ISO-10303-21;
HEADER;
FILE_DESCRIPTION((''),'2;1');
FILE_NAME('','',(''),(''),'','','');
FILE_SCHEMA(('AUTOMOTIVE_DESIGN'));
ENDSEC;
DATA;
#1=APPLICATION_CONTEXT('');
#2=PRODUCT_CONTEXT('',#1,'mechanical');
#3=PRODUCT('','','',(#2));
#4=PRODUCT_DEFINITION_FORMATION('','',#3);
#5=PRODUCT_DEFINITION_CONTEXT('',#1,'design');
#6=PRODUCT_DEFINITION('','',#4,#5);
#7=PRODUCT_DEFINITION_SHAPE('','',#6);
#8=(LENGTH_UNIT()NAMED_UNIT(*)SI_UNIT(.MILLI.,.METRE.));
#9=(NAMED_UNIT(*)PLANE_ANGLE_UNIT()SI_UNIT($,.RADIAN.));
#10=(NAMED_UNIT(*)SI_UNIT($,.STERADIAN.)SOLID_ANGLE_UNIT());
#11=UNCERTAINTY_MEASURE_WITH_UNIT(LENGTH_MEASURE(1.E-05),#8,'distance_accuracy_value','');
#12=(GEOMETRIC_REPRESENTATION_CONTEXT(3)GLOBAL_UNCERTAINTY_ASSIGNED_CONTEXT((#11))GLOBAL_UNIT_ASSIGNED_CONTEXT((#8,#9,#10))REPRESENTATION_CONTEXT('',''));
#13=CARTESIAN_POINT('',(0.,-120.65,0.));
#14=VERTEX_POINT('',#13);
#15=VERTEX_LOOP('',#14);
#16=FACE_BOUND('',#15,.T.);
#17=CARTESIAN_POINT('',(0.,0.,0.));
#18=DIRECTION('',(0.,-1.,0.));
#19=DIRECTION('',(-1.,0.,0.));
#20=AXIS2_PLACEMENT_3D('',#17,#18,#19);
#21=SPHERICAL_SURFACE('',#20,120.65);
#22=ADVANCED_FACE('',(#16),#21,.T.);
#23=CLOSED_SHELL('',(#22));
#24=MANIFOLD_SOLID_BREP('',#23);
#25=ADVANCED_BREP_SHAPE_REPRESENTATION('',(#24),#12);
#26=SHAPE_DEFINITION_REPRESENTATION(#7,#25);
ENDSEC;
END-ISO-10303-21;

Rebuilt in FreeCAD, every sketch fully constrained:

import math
import FreeCAD as App
import Part
import Sketcher
Q = App.Units.Quantity

doc = App.newDocument("Part")
body = doc.addObject("PartDesign::Body", "Body")

# Sketch on XY plane
sketch1 = body.newObject("Sketcher::SketchObject", "Sketch")
sketch1.AttachmentSupport = (doc.getObject("XY_Plane"), [""])
sketch1.MapMode = "FlatFace"
sketch1.addGeometry([
    Part.LineSegment(App.Vector(0, 121, 0), App.Vector(0, -121, 0)),
    Part.ArcOfCircle(Part.Circle(App.Vector(0, 0, 0), App.Vector(0, 0, 1), 121), math.radians(-90), math.radians(90)),
], False)
sketch1.addConstraint([
    Sketcher.Constraint("Coincident", 0, 1, 1, 2),
    Sketcher.Constraint("Coincident", 1, 1, 0, 2),
    Sketcher.Constraint("Vertical", 0),
    Sketcher.Constraint("Coincident", 1, 3, -1, 1),
    Sketcher.Constraint("PointOnObject", 0, 1, -2),
    Sketcher.Constraint("Radius", 1, Q("4.75 in")),
])
revolution = body.newObject("PartDesign::Revolution", "Revolution")
revolution.Profile = sketch1
revolution.ReferenceAxis = (sketch1, ["V_Axis"])
revolution.Angle = 360

doc.recompute()
